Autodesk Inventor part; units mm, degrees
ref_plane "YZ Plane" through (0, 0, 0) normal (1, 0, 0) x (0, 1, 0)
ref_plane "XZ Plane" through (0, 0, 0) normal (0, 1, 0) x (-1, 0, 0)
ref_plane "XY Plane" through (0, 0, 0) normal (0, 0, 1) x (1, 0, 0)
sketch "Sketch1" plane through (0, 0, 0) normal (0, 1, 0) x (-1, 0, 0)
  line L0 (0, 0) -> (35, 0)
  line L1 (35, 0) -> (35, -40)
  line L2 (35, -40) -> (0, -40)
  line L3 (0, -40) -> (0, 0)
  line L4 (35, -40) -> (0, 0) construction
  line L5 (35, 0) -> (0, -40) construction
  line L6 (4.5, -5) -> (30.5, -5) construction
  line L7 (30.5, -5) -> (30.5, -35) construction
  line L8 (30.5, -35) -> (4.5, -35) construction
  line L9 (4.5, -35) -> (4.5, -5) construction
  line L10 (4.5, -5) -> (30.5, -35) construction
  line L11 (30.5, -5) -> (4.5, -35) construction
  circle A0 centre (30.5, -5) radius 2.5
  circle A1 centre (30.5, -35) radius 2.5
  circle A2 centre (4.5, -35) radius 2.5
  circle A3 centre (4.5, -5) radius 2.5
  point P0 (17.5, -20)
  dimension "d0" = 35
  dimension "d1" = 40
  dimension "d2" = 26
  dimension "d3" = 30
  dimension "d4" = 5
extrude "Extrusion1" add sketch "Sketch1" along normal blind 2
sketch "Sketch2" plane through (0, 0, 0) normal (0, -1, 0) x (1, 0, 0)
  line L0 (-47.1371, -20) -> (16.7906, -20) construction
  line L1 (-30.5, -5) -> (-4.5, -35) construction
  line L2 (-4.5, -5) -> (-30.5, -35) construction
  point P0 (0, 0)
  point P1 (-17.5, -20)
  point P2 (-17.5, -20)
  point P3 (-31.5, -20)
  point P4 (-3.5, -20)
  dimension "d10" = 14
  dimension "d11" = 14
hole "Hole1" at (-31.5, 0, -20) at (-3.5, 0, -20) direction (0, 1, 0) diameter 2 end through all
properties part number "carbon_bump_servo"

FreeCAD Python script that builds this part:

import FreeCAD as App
import Part
import Sketcher

V = App.Vector
Q = App.Units.Quantity


def add_polygon(sketch, points):
    """Adds a closed chain of lines whose ends are joined by coincident constraints."""
    first, n = sketch.GeometryCount, len(points)
    for a, b in zip(points, points[1:] + points[:1]):
        sketch.addGeometry(Part.LineSegment(App.Vector(*a, 0), App.Vector(*b, 0)), False)
    for i in range(n):
        sketch.addConstraint(Sketcher.Constraint("Coincident", first + i, 2, first + (i + 1) % n, 1))

doc = App.newDocument("Part")
body = doc.addObject("PartDesign::Body", "Body")

sketch1 = body.newObject("Sketcher::SketchObject", "Sketch")
sketch1.AttachmentSupport = (doc.getObject("XZ_Plane"), [""])
sketch1.MapMode = "FlatFace"
add_polygon(sketch1, [(-35, 0), (0, 0), (0, -40), (-35, -40)])
sketch1.addGeometry(Part.Circle(V(-4.5, -35, 0), V(0, 0, 1), 2.5), False)
sketch1.addGeometry(Part.Circle(V(-30.5, -35, 0), V(0, 0, 1), 2.5), False)
sketch1.addGeometry(Part.Circle(V(-4.5, -5, 0), V(0, 0, 1), 2.5), False)
sketch1.addGeometry(Part.Circle(V(-30.5, -5, 0), V(0, 0, 1), 2.5), False)
sketch1.addConstraint([
    Sketcher.Constraint("Horizontal", 0),
    Sketcher.Constraint("Vertical", 1),
    Sketcher.Constraint("Horizontal", 2),
    Sketcher.Constraint("Vertical", 3),
    Sketcher.Constraint("Coincident", 0, 2, -1, 1),
    Sketcher.Constraint("Equal", 4, 5),
    Sketcher.Constraint("Equal", 5, 6),
    Sketcher.Constraint("Equal", 6, 7),
    Sketcher.Constraint("Horizontal", 4, 3, 5, 3),
    Sketcher.Constraint("Horizontal", 6, 3, 7, 3),
    Sketcher.Constraint("Vertical", 4, 3, 6, 3),
    Sketcher.Constraint("Vertical", 5, 3, 7, 3),
    Sketcher.Constraint("Diameter", 4, Q("5 mm")),
    Sketcher.Constraint("DistanceX", 0, 1, 0, 2, Q("35 mm")),
    Sketcher.Constraint("DistanceY", 1, 2, 1, 1, Q("40 mm")),
    Sketcher.Constraint("DistanceY", 4, 3, -1, 1, Q("35 mm")),
    Sketcher.Constraint("DistanceY", 6, 3, -1, 1, Q("5 mm")),
    Sketcher.Constraint("DistanceX", 5, 3, 4, 3, Q("26 mm")),
    Sketcher.Constraint("DistanceX", 4, 3, -1, 1, Q("4.5 mm")),
])
pad1 = body.newObject("PartDesign::Pad", "Pad")
pad1.Profile = sketch1
pad1.Length = 2
pad1.Reversed = True

sketch2 = body.newObject("Sketcher::SketchObject", "Sketch001")
sketch2.AttachmentSupport = (doc.getObject("XZ_Plane"), [""])
sketch2.MapMode = "FlatFace"
sketch2.addGeometry([
    Part.Circle(V(-31.5, -20, 0), V(0, 0, 1), 1),
    Part.Circle(V(-3.5, -20, 0), V(0, 0, 1), 1),
], False)
sketch2.addConstraint([
    Sketcher.Constraint("Equal", 0, 1),
    Sketcher.Constraint("Horizontal", 0, 3, 1, 3),
    Sketcher.Constraint("Diameter", 0, Q("2 mm")),
    Sketcher.Constraint("DistanceY", 0, 3, -1, 1, Q("20 mm")),
    Sketcher.Constraint("DistanceX", 0, 3, 1, 3, Q("28 mm")),
    Sketcher.Constraint("DistanceX", 0, 3, -1, 1, Q("31.5 mm")),
])
doc.recompute()
hole = body.newObject("PartDesign::Hole", "Hole")
hole.Profile = sketch2
hole.ThreadType = "None"
hole.Diameter = 2
hole.DepthType = "ThroughAll"

doc.recompute()
